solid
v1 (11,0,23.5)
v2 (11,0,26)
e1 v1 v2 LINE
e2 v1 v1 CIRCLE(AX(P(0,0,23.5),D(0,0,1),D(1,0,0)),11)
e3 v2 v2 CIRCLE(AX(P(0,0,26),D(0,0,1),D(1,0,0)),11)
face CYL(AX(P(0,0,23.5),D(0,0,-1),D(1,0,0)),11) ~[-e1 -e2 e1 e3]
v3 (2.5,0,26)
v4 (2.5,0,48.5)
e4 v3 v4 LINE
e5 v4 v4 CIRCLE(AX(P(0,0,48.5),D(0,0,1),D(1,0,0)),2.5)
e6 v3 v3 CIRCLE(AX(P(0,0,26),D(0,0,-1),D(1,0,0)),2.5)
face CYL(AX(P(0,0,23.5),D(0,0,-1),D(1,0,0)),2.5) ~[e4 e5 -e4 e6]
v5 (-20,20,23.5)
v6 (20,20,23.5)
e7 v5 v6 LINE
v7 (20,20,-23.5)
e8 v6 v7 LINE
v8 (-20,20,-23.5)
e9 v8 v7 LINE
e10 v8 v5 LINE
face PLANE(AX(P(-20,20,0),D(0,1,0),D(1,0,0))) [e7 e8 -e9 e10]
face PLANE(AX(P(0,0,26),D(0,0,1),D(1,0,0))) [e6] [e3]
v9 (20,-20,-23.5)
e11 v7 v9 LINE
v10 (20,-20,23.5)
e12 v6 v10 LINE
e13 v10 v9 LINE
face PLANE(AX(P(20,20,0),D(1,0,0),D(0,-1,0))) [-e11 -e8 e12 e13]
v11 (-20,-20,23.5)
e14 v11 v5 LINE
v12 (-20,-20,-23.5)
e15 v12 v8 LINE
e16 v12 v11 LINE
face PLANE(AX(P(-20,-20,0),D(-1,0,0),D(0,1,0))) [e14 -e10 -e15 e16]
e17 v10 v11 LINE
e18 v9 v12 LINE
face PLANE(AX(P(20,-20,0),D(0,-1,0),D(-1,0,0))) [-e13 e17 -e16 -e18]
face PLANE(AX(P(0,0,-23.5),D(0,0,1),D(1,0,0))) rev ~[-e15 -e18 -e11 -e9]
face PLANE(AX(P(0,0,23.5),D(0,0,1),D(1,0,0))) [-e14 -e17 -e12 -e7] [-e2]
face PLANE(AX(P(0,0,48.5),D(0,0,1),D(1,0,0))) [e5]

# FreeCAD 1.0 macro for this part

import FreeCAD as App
import Part
import Sketcher

V = App.Vector

doc = App.newDocument("Part")
body = doc.addObject("PartDesign::Body", "Body")

# Sketch on XY plane
sketch1 = body.newObject("Sketcher::SketchObject", "Sketch")
sketch1.AttachmentSupport = (doc.getObject("XY_Plane"), [""])
sketch1.MapMode = "FlatFace"
sketch1.addGeometry(Part.LineSegment(V(20, 20, 0), V(-20, 20, 0)), False)
sketch1.addGeometry(Part.LineSegment(V(-20, 20, 0), V(-20, -20, 0)), False)
sketch1.addGeometry(Part.LineSegment(V(-20, -20, 0), V(20, -20, 0)), False)
sketch1.addGeometry(Part.LineSegment(V(20, -20, 0), V(20, 20, 0)), False)
sketch1.addConstraint(Sketcher.Constraint("Coincident", 0, 2, 1, 1))
sketch1.addConstraint(Sketcher.Constraint("Coincident", 1, 2, 2, 1))
sketch1.addConstraint(Sketcher.Constraint("Coincident", 2, 2, 3, 1))
sketch1.addConstraint(Sketcher.Constraint("Coincident", 3, 2, 0, 1))
sketch1.addConstraint(Sketcher.Constraint("Horizontal", 0))
sketch1.addConstraint(Sketcher.Constraint("Vertical", 1))
sketch1.addConstraint(Sketcher.Constraint("Horizontal", 2))
sketch1.addConstraint(Sketcher.Constraint("Vertical", 3))
sketch1.addConstraint(Sketcher.Constraint("Symmetric", 0, 2, 2, 2, -1, 1))
sketch1.addConstraint(Sketcher.Constraint("Equal", 2, 1))
sketch1.addConstraint(Sketcher.Constraint("DistanceX", 0, 2, 0, 1, 40.0))
pad1 = body.newObject("PartDesign::Pad", "Pad")
pad1.Profile = sketch1
pad1.Length = 47
pad1.Midplane = True

# Sketch on XY plane
sketch2 = body.newObject("Sketcher::SketchObject", "Sketch001")
sketch2.AttachmentSupport = (doc.getObject("XY_Plane"), [""])
sketch2.MapMode = "FlatFace"
sketch2.AttachmentOffset = App.Placement(V(0, 0, 23.5), App.Rotation())
sketch2.addGeometry(Part.Circle(V(0, 0, 0), V(0, 0, 1), 2.5), False)
sketch2.addConstraint(Sketcher.Constraint("Coincident", 0, 3, -1, 1))
sketch2.addConstraint(Sketcher.Constraint("Diameter", 0, 5.0))
pad2 = body.newObject("PartDesign::Pad", "Pad001")
pad2.Profile = sketch2
pad2.Length = 25

# Sketch on XY plane
sketch3 = body.newObject("Sketcher::SketchObject", "Sketch002")
sketch3.AttachmentSupport = (doc.getObject("XY_Plane"), [""])
sketch3.MapMode = "FlatFace"
sketch3.AttachmentOffset = App.Placement(V(0, 0, 23.5), App.Rotation())
sketch3.addGeometry(Part.Circle(V(0, 0, 0), V(0, 0, 1), 11), False)
sketch3.addConstraint(Sketcher.Constraint("Coincident", 0, 3, -1, 1))
sketch3.addConstraint(Sketcher.Constraint("Diameter", 0, 22.0))
pad3 = body.newObject("PartDesign::Pad", "Pad002")
pad3.Profile = sketch3
pad3.Length = 2.5

doc.recompute()
